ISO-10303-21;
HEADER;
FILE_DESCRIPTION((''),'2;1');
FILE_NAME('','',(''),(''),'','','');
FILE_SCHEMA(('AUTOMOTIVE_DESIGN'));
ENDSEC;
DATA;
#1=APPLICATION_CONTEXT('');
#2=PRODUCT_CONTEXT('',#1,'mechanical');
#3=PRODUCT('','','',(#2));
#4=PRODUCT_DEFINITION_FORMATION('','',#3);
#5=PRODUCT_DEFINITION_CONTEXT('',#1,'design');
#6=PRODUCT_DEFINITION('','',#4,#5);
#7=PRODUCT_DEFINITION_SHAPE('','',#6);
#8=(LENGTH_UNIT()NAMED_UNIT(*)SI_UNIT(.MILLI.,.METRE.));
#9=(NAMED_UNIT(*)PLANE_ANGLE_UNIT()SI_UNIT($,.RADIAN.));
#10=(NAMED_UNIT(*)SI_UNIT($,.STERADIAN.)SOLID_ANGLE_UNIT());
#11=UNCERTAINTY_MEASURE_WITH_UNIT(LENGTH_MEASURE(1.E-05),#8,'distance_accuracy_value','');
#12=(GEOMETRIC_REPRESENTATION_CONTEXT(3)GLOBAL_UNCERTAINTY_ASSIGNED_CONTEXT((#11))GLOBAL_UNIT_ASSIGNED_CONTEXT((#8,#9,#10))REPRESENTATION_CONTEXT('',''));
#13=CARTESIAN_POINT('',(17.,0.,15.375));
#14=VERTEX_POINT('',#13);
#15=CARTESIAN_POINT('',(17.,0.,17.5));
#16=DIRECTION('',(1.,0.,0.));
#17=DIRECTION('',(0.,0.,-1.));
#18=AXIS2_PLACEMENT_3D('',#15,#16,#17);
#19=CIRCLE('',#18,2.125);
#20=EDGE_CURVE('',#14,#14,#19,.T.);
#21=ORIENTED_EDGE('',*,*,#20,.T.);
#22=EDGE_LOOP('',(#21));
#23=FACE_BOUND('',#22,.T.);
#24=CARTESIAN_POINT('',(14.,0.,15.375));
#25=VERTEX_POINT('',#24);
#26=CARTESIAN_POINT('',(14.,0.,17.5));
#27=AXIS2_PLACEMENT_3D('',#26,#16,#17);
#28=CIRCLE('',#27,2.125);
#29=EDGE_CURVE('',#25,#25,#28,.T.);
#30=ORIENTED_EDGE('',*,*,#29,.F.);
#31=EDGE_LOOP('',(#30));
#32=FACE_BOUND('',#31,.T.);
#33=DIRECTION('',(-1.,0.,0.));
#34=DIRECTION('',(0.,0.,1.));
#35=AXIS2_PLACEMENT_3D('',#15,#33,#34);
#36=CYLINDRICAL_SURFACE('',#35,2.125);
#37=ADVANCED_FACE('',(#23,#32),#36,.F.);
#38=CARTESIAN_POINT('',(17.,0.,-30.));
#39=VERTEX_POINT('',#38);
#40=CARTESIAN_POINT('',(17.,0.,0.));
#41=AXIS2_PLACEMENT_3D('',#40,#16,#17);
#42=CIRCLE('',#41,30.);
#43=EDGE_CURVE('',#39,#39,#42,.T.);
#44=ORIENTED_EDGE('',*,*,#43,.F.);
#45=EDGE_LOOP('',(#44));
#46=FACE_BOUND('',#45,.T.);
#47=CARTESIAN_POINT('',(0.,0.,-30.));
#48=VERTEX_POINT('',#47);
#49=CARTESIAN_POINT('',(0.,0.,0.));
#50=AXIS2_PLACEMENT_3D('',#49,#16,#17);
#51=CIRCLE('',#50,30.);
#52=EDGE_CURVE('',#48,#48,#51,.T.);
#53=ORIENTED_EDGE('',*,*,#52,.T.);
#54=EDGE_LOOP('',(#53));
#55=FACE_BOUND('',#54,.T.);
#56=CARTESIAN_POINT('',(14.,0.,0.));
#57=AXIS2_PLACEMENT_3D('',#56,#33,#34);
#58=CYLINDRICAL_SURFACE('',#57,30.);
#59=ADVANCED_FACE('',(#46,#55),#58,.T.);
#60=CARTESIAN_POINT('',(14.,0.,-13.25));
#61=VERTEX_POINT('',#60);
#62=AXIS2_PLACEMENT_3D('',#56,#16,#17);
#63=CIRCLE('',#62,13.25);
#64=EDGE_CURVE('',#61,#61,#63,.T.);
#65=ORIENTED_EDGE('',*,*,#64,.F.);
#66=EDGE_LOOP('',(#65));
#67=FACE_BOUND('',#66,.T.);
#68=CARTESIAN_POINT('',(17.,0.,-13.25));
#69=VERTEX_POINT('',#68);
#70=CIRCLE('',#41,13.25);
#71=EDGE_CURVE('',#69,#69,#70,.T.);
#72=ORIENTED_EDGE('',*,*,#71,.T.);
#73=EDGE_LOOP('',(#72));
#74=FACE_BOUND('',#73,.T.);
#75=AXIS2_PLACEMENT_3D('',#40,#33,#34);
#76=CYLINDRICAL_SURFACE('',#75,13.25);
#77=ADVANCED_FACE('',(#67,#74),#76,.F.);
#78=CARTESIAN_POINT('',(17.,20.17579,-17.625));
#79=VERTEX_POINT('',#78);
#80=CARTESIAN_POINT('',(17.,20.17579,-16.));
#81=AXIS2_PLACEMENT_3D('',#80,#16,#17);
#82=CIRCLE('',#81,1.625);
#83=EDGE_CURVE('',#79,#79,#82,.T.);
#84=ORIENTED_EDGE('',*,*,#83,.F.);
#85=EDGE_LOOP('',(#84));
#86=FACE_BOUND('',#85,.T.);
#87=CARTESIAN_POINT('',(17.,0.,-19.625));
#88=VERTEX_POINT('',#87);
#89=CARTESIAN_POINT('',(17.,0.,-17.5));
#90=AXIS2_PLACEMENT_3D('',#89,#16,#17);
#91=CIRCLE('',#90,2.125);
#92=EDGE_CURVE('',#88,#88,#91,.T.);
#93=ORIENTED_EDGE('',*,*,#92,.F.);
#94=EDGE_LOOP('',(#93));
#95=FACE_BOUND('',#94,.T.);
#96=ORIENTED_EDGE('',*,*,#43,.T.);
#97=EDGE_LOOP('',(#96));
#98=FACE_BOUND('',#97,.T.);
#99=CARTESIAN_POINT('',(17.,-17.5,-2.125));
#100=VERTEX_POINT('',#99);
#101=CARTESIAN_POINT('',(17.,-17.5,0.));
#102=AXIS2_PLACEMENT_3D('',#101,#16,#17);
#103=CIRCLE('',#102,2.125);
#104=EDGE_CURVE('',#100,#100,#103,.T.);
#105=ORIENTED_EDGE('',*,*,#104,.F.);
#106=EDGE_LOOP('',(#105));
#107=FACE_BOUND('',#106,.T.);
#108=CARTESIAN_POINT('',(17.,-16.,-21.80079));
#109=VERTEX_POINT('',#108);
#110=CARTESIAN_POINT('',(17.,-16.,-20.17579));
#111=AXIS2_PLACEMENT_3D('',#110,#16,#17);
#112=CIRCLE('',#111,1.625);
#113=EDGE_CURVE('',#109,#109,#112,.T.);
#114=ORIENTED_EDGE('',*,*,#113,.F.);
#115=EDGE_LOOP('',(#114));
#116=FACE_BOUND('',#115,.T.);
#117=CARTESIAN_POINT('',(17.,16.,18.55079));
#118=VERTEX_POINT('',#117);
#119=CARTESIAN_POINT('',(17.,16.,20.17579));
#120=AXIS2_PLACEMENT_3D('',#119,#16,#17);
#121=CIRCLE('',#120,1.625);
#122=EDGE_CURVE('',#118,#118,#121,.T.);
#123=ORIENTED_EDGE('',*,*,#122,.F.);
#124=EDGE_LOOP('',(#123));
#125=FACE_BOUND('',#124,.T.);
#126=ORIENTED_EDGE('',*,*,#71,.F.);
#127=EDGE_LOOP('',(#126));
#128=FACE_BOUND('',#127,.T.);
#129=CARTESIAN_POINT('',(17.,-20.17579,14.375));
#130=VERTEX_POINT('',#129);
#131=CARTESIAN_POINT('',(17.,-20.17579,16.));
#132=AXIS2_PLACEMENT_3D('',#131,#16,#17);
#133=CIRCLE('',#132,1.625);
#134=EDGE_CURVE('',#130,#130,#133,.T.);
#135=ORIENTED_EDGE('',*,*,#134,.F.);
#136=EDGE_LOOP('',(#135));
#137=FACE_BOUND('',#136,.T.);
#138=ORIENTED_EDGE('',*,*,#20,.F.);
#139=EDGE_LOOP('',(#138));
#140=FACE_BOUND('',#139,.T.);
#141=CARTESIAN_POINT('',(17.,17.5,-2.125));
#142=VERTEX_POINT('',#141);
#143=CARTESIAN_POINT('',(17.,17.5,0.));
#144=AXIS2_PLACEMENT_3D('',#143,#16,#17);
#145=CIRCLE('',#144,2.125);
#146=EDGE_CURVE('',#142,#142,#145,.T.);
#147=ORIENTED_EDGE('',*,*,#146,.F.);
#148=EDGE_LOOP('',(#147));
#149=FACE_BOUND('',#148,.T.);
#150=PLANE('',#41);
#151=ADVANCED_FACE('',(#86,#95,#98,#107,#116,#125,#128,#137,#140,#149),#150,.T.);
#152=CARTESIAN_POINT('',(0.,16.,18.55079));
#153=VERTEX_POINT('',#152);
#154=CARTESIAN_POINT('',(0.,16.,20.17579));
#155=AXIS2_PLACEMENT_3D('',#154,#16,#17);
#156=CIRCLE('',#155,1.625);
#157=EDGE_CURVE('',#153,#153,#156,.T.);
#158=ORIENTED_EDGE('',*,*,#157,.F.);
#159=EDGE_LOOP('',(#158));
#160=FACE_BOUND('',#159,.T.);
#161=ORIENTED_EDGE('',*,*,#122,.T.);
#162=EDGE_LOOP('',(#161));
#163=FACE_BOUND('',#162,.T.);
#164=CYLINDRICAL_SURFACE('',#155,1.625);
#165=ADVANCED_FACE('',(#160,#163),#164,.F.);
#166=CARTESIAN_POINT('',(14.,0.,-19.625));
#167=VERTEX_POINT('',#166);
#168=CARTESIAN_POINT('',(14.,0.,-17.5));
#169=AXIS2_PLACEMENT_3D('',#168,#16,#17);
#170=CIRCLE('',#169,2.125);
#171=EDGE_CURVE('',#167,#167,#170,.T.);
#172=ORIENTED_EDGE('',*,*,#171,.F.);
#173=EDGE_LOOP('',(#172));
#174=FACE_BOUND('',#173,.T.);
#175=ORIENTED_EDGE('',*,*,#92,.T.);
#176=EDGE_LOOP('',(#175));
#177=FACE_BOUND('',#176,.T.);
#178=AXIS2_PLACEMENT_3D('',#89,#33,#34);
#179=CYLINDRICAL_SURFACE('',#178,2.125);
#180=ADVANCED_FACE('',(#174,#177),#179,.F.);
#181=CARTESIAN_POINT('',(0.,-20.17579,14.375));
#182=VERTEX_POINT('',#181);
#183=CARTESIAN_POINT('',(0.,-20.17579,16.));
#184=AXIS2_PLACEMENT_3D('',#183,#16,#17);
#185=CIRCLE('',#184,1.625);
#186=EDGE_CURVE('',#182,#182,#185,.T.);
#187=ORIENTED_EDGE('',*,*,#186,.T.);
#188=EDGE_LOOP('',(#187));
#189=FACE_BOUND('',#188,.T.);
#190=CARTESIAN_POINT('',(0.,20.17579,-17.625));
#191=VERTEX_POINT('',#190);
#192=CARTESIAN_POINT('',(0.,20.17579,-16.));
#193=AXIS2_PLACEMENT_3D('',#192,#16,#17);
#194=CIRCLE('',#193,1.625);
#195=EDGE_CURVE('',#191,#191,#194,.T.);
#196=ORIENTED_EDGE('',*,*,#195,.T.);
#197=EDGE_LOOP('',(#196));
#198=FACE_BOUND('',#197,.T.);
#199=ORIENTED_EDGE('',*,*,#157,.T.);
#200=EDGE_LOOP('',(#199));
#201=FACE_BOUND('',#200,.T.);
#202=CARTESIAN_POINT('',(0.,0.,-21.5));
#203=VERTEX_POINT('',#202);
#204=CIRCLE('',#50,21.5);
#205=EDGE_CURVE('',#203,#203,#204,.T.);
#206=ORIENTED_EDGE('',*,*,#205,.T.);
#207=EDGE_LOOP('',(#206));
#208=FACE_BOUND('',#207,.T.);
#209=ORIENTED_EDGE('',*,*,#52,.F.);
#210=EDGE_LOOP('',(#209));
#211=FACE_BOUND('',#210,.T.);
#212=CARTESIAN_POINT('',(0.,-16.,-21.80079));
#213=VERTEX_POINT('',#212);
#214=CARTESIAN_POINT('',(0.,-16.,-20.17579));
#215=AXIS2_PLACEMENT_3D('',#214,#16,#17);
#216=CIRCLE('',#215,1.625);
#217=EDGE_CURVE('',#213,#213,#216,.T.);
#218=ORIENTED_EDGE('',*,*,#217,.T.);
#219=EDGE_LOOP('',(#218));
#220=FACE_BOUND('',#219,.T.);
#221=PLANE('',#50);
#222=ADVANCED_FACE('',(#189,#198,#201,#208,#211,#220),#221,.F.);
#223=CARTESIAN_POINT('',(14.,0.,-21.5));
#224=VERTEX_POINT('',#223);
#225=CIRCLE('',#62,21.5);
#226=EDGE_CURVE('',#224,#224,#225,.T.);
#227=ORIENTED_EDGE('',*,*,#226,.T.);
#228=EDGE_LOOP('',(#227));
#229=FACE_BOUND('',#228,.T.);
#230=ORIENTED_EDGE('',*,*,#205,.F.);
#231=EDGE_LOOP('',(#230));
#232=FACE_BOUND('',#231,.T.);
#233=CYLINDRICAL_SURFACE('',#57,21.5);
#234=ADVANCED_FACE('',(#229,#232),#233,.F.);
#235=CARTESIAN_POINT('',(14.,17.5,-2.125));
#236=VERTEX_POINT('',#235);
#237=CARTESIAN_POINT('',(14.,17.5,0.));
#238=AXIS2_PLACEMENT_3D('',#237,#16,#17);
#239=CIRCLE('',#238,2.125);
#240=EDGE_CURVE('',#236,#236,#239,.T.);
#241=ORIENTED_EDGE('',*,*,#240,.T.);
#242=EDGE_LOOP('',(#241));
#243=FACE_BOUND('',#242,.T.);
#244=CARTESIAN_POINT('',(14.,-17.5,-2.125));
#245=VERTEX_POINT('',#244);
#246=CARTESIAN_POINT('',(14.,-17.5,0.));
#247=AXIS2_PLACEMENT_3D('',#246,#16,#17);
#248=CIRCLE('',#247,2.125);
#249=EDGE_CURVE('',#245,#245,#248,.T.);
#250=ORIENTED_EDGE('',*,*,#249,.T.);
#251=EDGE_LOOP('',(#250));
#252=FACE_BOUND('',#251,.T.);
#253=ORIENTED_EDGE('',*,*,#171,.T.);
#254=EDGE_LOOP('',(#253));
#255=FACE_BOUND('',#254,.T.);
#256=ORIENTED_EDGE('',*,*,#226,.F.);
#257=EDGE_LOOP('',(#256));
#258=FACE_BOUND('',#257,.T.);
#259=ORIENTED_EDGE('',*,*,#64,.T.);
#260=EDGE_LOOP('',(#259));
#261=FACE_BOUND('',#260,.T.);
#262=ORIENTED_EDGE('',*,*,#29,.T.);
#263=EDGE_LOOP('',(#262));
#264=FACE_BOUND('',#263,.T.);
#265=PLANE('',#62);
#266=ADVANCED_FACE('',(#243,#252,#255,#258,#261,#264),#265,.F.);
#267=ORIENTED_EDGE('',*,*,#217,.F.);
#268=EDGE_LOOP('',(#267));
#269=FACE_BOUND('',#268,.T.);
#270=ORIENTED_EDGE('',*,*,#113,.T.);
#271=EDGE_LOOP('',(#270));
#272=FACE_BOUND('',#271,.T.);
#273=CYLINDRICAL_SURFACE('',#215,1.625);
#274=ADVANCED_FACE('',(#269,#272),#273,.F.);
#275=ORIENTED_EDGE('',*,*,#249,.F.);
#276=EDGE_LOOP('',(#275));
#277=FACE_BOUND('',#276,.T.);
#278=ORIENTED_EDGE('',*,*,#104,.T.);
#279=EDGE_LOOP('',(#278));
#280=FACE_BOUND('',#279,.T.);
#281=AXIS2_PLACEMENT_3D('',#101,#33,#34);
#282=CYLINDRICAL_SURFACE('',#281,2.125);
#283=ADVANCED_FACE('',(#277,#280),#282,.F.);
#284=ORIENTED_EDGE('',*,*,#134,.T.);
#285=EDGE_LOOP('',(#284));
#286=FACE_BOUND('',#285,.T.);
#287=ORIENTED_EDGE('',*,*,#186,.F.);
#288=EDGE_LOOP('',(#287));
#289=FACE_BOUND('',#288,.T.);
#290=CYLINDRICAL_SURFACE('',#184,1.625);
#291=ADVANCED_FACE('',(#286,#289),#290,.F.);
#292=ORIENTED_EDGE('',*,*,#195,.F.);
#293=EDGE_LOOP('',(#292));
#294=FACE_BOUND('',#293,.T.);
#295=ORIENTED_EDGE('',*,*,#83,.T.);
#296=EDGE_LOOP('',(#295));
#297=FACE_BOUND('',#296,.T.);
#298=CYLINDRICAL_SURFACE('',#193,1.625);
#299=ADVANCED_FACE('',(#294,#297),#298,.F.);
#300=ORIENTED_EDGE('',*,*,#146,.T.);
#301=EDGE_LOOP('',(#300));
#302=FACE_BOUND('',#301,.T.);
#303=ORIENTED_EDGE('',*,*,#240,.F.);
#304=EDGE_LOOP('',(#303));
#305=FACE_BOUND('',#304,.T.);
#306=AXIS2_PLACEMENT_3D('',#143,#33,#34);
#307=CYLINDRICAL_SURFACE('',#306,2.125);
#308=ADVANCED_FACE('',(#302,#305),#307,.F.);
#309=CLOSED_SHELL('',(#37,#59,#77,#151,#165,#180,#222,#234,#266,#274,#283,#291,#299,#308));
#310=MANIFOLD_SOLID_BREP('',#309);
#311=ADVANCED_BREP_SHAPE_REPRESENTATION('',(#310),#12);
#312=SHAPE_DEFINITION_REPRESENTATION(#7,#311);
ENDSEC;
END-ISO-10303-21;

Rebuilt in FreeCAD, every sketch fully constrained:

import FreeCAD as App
import Part
import Sketcher
from FreeCAD import Vector

doc = App.newDocument("Part")
body = doc.addObject("PartDesign::Body", "Body")

sketch1 = doc.addObject("Sketcher::SketchObject", "Sketch")
body.addObject(sketch1)
sketch1.AttachmentSupport = (doc.YZ_Plane, [""])
sketch1.MapMode = "FlatFace"
sketch1.addGeometry([
    Part.Circle(Vector(0, 0, 0), Vector(0, 0, 1), 30),
    Part.Circle(Vector(0, 0, 0), Vector(0, 0, 1), 22),
], False)
sketch1.addConstraint([
    Sketcher.Constraint("Coincident", 0, 3, -1, 1),
    Sketcher.Constraint("Coincident", 1, 3, -1, 1),
    Sketcher.Constraint("Diameter", 0, 60.0),
    Sketcher.Constraint("Diameter", 1, 43.0),
])
pad1 = doc.addObject("PartDesign::Pad", "Pad")
body.addObject(pad1)
pad1.Profile = sketch1
pad1.Length = 14

sketch2 = doc.addObject("Sketcher::SketchObject", "Sketch001")
body.addObject(sketch2)
sketch2.AttachmentSupport = (doc.YZ_Plane, [""])
sketch2.MapMode = "FlatFace"
sketch2.AttachmentOffset = App.Placement(Vector(0, 0, 14), App.Rotation())
sketch2.addGeometry([
    Part.Circle(Vector(0, 0, 0), Vector(0, 0, 1), 30),
    Part.Circle(Vector(-17.5, 0, 0), Vector(0, 0, 1), 2.1),
    Part.Circle(Vector(0, 17.5, 0), Vector(0, 0, 1), 2.1),
    Part.Circle(Vector(0, 0, 0), Vector(0, 0, 1), 13.2),
    Part.Circle(Vector(0, -17.5, 0), Vector(0, 0, 1), 2.1),
    Part.Circle(Vector(17.5, 0, 0), Vector(0, 0, 1), 2.1),
], False)
sketch2.addConstraint([
    Sketcher.Constraint("Coincident", 0, 3, -1, 1),
    Sketcher.Constraint("Coincident", 3, 3, -1, 1),
    Sketcher.Constraint("Equal", 1, 2),
    Sketcher.Constraint("Equal", 2, 4),
    Sketcher.Constraint("Equal", 4, 5),
    Sketcher.Constraint("Symmetric", 2, 3, 4, 3, -1, 1),
    Sketcher.Constraint("Symmetric", 1, 3, 5, 3, -1, 1),
    Sketcher.Constraint("PointOnObject", 1, 3, -1),
    Sketcher.Constraint("PointOnObject", 2, 3, -2),
    Sketcher.Constraint("Diameter", 0, 60.0),
    Sketcher.Constraint("Diameter", 3, 26.5),
    Sketcher.Constraint("Diameter", 1, 4.25),
    Sketcher.Constraint("DistanceY", 4, 3, 2, 3, 35.0),
    Sketcher.Constraint("DistanceX", 1, 3, 5, 3, 35.0),
])
pad2 = doc.addObject("PartDesign::Pad", "Pad001")
body.addObject(pad2)
pad2.Profile = sketch2
pad2.Length = 3

sketch3 = doc.addObject("Sketcher::SketchObject", "Sketch002")
body.addObject(sketch3)
sketch3.AttachmentSupport = (doc.YZ_Plane, [""])
sketch3.MapMode = "FlatFace"
sketch3.AttachmentOffset = App.Placement(Vector(0, 0, 17), App.Rotation())
sketch3.addGeometry([
    Part.Circle(Vector(16, 20.2, 0), Vector(0, 0, 1), 1.6),
    Part.Circle(Vector(20.2, -16, 0), Vector(0, 0, 1), 1.6),
    Part.Circle(Vector(-16, -20.2, 0), Vector(0, 0, 1), 1.6),
    Part.Circle(Vector(-20.2, 16, 0), Vector(0, 0, 1), 1.6),
], False)
sketch3.addConstraint([
    Sketcher.Constraint("Equal", 0, 1),
    Sketcher.Constraint("Equal", 1, 2),
    Sketcher.Constraint("Equal", 2, 3),
    Sketcher.Constraint("Symmetric", 0, 3, 2, 3, -1, 1),
    Sketcher.Constraint("Symmetric", 1, 3, 3, 3, -1, 1),
    Sketcher.Constraint("Diameter", 0, 3.25),
    Sketcher.Constraint("DistanceX", -1, 1, 0, 3, 16.0),
    Sketcher.Constraint("DistanceY", 1, 3, -1, 1, 16.0),
    Sketcher.Constraint("DistanceY", -1, 1, 0, 3, 20.17579),
    Sketcher.Constraint("DistanceX", -1, 1, 1, 3, 20.17579),
])
pocket1 = doc.addObject("PartDesign::Pocket", "Pocket")
body.addObject(pocket1)
pocket1.Profile = sketch3
pocket1.Type = "ThroughAll"

doc.recompute()
